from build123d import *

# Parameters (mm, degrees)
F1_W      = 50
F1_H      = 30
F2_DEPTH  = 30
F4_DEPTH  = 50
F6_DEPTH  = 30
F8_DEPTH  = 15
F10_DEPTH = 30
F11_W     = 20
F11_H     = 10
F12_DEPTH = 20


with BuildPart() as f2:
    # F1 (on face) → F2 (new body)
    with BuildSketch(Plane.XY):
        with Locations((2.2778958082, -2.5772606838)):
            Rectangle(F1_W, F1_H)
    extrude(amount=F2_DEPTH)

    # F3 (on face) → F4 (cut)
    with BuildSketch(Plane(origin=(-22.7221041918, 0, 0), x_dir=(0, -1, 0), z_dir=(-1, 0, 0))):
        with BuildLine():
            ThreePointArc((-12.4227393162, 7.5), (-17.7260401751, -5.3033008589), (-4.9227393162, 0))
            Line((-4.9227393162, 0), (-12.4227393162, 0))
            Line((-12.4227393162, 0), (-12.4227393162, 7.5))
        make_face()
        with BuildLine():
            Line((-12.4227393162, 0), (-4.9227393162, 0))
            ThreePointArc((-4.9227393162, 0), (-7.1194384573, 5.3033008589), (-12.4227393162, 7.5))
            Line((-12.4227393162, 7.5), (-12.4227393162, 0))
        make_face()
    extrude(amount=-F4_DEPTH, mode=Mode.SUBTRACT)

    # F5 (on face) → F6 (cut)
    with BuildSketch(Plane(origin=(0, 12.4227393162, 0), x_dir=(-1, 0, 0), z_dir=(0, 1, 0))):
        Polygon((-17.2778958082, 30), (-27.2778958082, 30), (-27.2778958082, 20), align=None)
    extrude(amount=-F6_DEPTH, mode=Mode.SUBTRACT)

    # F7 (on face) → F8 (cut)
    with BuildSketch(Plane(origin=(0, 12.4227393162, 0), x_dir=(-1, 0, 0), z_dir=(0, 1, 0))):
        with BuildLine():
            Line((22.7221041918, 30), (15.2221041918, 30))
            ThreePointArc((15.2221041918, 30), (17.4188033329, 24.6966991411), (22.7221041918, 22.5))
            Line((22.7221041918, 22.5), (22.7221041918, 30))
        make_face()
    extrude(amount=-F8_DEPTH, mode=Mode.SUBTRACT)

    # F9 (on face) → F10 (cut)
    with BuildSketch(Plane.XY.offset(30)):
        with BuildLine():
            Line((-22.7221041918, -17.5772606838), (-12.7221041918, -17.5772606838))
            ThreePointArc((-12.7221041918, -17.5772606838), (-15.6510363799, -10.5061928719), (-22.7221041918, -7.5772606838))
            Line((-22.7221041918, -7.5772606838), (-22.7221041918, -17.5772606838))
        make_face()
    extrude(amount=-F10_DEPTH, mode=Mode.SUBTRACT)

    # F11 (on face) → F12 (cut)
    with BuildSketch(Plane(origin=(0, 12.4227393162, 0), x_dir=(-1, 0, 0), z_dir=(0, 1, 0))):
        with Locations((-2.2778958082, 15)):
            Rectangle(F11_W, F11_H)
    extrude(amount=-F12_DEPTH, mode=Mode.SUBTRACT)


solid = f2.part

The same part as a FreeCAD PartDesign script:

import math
import FreeCAD as App
import Part
import Sketcher
from FreeCAD import Vector

doc = App.newDocument("Part")
body = doc.addObject("PartDesign::Body", "Body")

# Sketch on XY plane
sketch1 = body.newObject("Sketcher::SketchObject", "Sketch")
sketch1.AttachmentSupport = (doc.getObject("XY_Plane"), [""])
sketch1.MapMode = "FlatFace"
sketch1.addGeometry([
    Part.LineSegment(Vector(-23, 12, 0), Vector(-23, -18, 0)),
    Part.LineSegment(Vector(-23, -18, 0), Vector(27, -18, 0)),
    Part.LineSegment(Vector(27, -18, 0), Vector(27, 12, 0)),
    Part.LineSegment(Vector(27, 12, 0), Vector(-23, 12, 0)),
], False)
sketch1.addConstraint([
    Sketcher.Constraint("Coincident", 0, 2, 1, 1),
    Sketcher.Constraint("Coincident", 1, 2, 2, 1),
    Sketcher.Constraint("Coincident", 2, 2, 3, 1),
    Sketcher.Constraint("Coincident", 3, 2, 0, 1),
    Sketcher.Constraint("Vertical", 0),
    Sketcher.Constraint("Horizontal", 1),
    Sketcher.Constraint("Vertical", 2),
    Sketcher.Constraint("Horizontal", 3),
    Sketcher.Constraint("DistanceX", 1, 1, 1, 2, 50.0),
    Sketcher.Constraint("DistanceY", 0, 2, 0, 1, 30.0),
    Sketcher.Constraint("DistanceY", 0, 2, -1, 1, 17.577261),
    Sketcher.Constraint("DistanceX", 0, 2, -1, 1, 22.722104),
])
pad1 = body.newObject("PartDesign::Pad", "Pad")
pad1.Profile = sketch1
pad1.Length = 30

# Sketch on YZ plane
sketch2 = body.newObject("Sketcher::SketchObject", "Sketch001")
sketch2.AttachmentSupport = (doc.getObject("YZ_Plane"), [""])
sketch2.MapMode = "FlatFace"
sketch2.AttachmentOffset = App.Placement(Vector(0, 0, -22.722104), App.Rotation())
sketch2.addGeometry(Part.Circle(Vector(12, 0, 0), Vector(0, 0, 1), 8), False)
sketch2.addConstraint([
    Sketcher.Constraint("PointOnObject", 0, 3, -1),
    Sketcher.Constraint("Diameter", 0, 15.0),
    Sketcher.Constraint("DistanceX", -1, 1, 0, 3, 12.422739),
])
pocket1 = body.newObject("PartDesign::Pocket", "Pocket")
pocket1.Profile = sketch2
pocket1.Length = 50
pocket1.Reversed = True

# Sketch on XZ plane
sketch3 = body.newObject("Sketcher::SketchObject", "Sketch002")
sketch3.AttachmentSupport = (doc.getObject("XZ_Plane"), [""])
sketch3.MapMode = "FlatFace"
sketch3.AttachmentOffset = App.Placement(Vector(0, 0, -12.422739), App.Rotation())
sketch3.addGeometry([
    Part.LineSegment(Vector(17, 30, 0), Vector(27, 30, 0)),
    Part.LineSegment(Vector(27, 30, 0), Vector(27, 20, 0)),
    Part.LineSegment(Vector(27, 20, 0), Vector(17, 30, 0)),
], False)
sketch3.addConstraint([
    Sketcher.Constraint("Coincident", 0, 2, 1, 1),
    Sketcher.Constraint("Coincident", 1, 2, 2, 1),
    Sketcher.Constraint("Coincident", 2, 2, 0, 1),
    Sketcher.Constraint("Horizontal", 0),
    Sketcher.Constraint("Vertical", 1),
    Sketcher.Constraint("Equal", 0, 1),
    Sketcher.Constraint("DistanceX", 0, 1, 0, 2, 10.0),
    Sketcher.Constraint("DistanceY", -1, 1, 0, 2, 30.0),
    Sketcher.Constraint("DistanceX", -1, 1, 0, 2, 27.277896),
])
pocket2 = body.newObject("PartDesign::Pocket", "Pocket001")
pocket2.Profile = sketch3
pocket2.Length = 30
pocket2.Reversed = True

# Sketch on XZ plane
sketch4 = body.newObject("Sketcher::SketchObject", "Sketch003")
sketch4.AttachmentSupport = (doc.getObject("XZ_Plane"), [""])
sketch4.MapMode = "FlatFace"
sketch4.AttachmentOffset = App.Placement(Vector(0, 0, -12.422739), App.Rotation())
sketch4.addGeometry([
    Part.LineSegment(Vector(-23, 30, 0), Vector(-15, 30, 0)),
    Part.ArcOfCircle(Part.Circle(Vector(-23, 30, 0), Vector(0, 0, 1), 8), math.radians(-90), math.radians(0)),
    Part.LineSegment(Vector(-23, 22, 0), Vector(-23, 30, 0)),
], False)
sketch4.addConstraint([
    Sketcher.Constraint("Coincident", 0, 2, 1, 2),
    Sketcher.Constraint("Coincident", 1, 1, 2, 1),
    Sketcher.Constraint("Coincident", 2, 2, 0, 1),
    Sketcher.Constraint("Horizontal", 0),
    Sketcher.Constraint("Vertical", 2),
    Sketcher.Constraint("Coincident", 2, 2, 1, 3),
    Sketcher.Constraint("Radius", 1, 7.5),
    Sketcher.Constraint("DistanceY", -1, 1, 1, 3, 30.0),
    Sketcher.Constraint("DistanceX", 1, 3, -1, 1, 22.722104),
])
pocket3 = body.newObject("PartDesign::Pocket", "Pocket002")
pocket3.Profile = sketch4
pocket3.Length = 15
pocket3.Reversed = True

# Sketch on XY plane
sketch5 = body.newObject("Sketcher::SketchObject", "Sketch004")
sketch5.AttachmentSupport = (doc.getObject("XY_Plane"), [""])
sketch5.MapMode = "FlatFace"
sketch5.AttachmentOffset = App.Placement(Vector(0, 0, 30), App.Rotation())
sketch5.addGeometry([
    Part.LineSegment(Vector(-23, -18, 0), Vector(-13, -18, 0)),
    Part.ArcOfCircle(Part.Circle(Vector(-23, -18, 0), Vector(0, 0, 1), 10), math.radians(0), math.radians(90)),
    Part.LineSegment(Vector(-23, -8, 0), Vector(-23, -18, 0)),
], False)
sketch5.addConstraint([
    Sketcher.Constraint("Coincident", 0, 2, 1, 1),
    Sketcher.Constraint("Coincident", 1, 2, 2, 1),
    Sketcher.Constraint("Coincident", 2, 2, 0, 1),
    Sketcher.Constraint("Horizontal", 0),
    Sketcher.Constraint("Vertical", 2),
    Sketcher.Constraint("Coincident", 2, 2, 1, 3),
    Sketcher.Constraint("Radius", 1, 10.0),
    Sketcher.Constraint("DistanceY", 1, 3, -1, 1, 17.577261),
    Sketcher.Constraint("DistanceX", 1, 3, -1, 1, 22.722104),
])
pocket4 = body.newObject("PartDesign::Pocket", "Pocket003")
pocket4.Profile = sketch5
pocket4.Length = 30

# Sketch on XZ plane
sketch6 = body.newObject("Sketcher::SketchObject", "Sketch005")
sketch6.AttachmentSupport = (doc.getObject("XZ_Plane"), [""])
sketch6.MapMode = "FlatFace"
sketch6.AttachmentOffset = App.Placement(Vector(0, 0, -12.422739), App.Rotation())
sketch6.addGeometry([
    Part.LineSegment(Vector(12, 20, 0), Vector(12, 10, 0)),
    Part.LineSegment(Vector(12, 10, 0), Vector(-8, 10, 0)),
    Part.LineSegment(Vector(-8, 10, 0), Vector(-8, 20, 0)),
    Part.LineSegment(Vector(-8, 20, 0), Vector(12, 20, 0)),
], False)
sketch6.addConstraint([
    Sketcher.Constraint("Coincident", 0, 2, 1, 1),
    Sketcher.Constraint("Coincident", 1, 2, 2, 1),
    Sketcher.Constraint("Coincident", 2, 2, 3, 1),
    Sketcher.Constraint("Coincident", 3, 2, 0, 1),
    Sketcher.Constraint("Vertical", 0),
    Sketcher.Constraint("Horizontal", 1),
    Sketcher.Constraint("Vertical", 2),
    Sketcher.Constraint("Horizontal", 3),
    Sketcher.Constraint("DistanceX", 1, 2, 1, 1, 20.0),
    Sketcher.Constraint("DistanceY", 0, 2, 0, 1, 10.0),
    Sketcher.Constraint("DistanceY", -1, 1, 0, 2, 10.0),
    Sketcher.Constraint("DistanceX", -1, 1, 0, 2, 12.277896),
])
pocket5 = body.newObject("PartDesign::Pocket", "Pocket004")
pocket5.Profile = sketch6
pocket5.Length = 20
pocket5.Reversed = True

doc.recompute()
